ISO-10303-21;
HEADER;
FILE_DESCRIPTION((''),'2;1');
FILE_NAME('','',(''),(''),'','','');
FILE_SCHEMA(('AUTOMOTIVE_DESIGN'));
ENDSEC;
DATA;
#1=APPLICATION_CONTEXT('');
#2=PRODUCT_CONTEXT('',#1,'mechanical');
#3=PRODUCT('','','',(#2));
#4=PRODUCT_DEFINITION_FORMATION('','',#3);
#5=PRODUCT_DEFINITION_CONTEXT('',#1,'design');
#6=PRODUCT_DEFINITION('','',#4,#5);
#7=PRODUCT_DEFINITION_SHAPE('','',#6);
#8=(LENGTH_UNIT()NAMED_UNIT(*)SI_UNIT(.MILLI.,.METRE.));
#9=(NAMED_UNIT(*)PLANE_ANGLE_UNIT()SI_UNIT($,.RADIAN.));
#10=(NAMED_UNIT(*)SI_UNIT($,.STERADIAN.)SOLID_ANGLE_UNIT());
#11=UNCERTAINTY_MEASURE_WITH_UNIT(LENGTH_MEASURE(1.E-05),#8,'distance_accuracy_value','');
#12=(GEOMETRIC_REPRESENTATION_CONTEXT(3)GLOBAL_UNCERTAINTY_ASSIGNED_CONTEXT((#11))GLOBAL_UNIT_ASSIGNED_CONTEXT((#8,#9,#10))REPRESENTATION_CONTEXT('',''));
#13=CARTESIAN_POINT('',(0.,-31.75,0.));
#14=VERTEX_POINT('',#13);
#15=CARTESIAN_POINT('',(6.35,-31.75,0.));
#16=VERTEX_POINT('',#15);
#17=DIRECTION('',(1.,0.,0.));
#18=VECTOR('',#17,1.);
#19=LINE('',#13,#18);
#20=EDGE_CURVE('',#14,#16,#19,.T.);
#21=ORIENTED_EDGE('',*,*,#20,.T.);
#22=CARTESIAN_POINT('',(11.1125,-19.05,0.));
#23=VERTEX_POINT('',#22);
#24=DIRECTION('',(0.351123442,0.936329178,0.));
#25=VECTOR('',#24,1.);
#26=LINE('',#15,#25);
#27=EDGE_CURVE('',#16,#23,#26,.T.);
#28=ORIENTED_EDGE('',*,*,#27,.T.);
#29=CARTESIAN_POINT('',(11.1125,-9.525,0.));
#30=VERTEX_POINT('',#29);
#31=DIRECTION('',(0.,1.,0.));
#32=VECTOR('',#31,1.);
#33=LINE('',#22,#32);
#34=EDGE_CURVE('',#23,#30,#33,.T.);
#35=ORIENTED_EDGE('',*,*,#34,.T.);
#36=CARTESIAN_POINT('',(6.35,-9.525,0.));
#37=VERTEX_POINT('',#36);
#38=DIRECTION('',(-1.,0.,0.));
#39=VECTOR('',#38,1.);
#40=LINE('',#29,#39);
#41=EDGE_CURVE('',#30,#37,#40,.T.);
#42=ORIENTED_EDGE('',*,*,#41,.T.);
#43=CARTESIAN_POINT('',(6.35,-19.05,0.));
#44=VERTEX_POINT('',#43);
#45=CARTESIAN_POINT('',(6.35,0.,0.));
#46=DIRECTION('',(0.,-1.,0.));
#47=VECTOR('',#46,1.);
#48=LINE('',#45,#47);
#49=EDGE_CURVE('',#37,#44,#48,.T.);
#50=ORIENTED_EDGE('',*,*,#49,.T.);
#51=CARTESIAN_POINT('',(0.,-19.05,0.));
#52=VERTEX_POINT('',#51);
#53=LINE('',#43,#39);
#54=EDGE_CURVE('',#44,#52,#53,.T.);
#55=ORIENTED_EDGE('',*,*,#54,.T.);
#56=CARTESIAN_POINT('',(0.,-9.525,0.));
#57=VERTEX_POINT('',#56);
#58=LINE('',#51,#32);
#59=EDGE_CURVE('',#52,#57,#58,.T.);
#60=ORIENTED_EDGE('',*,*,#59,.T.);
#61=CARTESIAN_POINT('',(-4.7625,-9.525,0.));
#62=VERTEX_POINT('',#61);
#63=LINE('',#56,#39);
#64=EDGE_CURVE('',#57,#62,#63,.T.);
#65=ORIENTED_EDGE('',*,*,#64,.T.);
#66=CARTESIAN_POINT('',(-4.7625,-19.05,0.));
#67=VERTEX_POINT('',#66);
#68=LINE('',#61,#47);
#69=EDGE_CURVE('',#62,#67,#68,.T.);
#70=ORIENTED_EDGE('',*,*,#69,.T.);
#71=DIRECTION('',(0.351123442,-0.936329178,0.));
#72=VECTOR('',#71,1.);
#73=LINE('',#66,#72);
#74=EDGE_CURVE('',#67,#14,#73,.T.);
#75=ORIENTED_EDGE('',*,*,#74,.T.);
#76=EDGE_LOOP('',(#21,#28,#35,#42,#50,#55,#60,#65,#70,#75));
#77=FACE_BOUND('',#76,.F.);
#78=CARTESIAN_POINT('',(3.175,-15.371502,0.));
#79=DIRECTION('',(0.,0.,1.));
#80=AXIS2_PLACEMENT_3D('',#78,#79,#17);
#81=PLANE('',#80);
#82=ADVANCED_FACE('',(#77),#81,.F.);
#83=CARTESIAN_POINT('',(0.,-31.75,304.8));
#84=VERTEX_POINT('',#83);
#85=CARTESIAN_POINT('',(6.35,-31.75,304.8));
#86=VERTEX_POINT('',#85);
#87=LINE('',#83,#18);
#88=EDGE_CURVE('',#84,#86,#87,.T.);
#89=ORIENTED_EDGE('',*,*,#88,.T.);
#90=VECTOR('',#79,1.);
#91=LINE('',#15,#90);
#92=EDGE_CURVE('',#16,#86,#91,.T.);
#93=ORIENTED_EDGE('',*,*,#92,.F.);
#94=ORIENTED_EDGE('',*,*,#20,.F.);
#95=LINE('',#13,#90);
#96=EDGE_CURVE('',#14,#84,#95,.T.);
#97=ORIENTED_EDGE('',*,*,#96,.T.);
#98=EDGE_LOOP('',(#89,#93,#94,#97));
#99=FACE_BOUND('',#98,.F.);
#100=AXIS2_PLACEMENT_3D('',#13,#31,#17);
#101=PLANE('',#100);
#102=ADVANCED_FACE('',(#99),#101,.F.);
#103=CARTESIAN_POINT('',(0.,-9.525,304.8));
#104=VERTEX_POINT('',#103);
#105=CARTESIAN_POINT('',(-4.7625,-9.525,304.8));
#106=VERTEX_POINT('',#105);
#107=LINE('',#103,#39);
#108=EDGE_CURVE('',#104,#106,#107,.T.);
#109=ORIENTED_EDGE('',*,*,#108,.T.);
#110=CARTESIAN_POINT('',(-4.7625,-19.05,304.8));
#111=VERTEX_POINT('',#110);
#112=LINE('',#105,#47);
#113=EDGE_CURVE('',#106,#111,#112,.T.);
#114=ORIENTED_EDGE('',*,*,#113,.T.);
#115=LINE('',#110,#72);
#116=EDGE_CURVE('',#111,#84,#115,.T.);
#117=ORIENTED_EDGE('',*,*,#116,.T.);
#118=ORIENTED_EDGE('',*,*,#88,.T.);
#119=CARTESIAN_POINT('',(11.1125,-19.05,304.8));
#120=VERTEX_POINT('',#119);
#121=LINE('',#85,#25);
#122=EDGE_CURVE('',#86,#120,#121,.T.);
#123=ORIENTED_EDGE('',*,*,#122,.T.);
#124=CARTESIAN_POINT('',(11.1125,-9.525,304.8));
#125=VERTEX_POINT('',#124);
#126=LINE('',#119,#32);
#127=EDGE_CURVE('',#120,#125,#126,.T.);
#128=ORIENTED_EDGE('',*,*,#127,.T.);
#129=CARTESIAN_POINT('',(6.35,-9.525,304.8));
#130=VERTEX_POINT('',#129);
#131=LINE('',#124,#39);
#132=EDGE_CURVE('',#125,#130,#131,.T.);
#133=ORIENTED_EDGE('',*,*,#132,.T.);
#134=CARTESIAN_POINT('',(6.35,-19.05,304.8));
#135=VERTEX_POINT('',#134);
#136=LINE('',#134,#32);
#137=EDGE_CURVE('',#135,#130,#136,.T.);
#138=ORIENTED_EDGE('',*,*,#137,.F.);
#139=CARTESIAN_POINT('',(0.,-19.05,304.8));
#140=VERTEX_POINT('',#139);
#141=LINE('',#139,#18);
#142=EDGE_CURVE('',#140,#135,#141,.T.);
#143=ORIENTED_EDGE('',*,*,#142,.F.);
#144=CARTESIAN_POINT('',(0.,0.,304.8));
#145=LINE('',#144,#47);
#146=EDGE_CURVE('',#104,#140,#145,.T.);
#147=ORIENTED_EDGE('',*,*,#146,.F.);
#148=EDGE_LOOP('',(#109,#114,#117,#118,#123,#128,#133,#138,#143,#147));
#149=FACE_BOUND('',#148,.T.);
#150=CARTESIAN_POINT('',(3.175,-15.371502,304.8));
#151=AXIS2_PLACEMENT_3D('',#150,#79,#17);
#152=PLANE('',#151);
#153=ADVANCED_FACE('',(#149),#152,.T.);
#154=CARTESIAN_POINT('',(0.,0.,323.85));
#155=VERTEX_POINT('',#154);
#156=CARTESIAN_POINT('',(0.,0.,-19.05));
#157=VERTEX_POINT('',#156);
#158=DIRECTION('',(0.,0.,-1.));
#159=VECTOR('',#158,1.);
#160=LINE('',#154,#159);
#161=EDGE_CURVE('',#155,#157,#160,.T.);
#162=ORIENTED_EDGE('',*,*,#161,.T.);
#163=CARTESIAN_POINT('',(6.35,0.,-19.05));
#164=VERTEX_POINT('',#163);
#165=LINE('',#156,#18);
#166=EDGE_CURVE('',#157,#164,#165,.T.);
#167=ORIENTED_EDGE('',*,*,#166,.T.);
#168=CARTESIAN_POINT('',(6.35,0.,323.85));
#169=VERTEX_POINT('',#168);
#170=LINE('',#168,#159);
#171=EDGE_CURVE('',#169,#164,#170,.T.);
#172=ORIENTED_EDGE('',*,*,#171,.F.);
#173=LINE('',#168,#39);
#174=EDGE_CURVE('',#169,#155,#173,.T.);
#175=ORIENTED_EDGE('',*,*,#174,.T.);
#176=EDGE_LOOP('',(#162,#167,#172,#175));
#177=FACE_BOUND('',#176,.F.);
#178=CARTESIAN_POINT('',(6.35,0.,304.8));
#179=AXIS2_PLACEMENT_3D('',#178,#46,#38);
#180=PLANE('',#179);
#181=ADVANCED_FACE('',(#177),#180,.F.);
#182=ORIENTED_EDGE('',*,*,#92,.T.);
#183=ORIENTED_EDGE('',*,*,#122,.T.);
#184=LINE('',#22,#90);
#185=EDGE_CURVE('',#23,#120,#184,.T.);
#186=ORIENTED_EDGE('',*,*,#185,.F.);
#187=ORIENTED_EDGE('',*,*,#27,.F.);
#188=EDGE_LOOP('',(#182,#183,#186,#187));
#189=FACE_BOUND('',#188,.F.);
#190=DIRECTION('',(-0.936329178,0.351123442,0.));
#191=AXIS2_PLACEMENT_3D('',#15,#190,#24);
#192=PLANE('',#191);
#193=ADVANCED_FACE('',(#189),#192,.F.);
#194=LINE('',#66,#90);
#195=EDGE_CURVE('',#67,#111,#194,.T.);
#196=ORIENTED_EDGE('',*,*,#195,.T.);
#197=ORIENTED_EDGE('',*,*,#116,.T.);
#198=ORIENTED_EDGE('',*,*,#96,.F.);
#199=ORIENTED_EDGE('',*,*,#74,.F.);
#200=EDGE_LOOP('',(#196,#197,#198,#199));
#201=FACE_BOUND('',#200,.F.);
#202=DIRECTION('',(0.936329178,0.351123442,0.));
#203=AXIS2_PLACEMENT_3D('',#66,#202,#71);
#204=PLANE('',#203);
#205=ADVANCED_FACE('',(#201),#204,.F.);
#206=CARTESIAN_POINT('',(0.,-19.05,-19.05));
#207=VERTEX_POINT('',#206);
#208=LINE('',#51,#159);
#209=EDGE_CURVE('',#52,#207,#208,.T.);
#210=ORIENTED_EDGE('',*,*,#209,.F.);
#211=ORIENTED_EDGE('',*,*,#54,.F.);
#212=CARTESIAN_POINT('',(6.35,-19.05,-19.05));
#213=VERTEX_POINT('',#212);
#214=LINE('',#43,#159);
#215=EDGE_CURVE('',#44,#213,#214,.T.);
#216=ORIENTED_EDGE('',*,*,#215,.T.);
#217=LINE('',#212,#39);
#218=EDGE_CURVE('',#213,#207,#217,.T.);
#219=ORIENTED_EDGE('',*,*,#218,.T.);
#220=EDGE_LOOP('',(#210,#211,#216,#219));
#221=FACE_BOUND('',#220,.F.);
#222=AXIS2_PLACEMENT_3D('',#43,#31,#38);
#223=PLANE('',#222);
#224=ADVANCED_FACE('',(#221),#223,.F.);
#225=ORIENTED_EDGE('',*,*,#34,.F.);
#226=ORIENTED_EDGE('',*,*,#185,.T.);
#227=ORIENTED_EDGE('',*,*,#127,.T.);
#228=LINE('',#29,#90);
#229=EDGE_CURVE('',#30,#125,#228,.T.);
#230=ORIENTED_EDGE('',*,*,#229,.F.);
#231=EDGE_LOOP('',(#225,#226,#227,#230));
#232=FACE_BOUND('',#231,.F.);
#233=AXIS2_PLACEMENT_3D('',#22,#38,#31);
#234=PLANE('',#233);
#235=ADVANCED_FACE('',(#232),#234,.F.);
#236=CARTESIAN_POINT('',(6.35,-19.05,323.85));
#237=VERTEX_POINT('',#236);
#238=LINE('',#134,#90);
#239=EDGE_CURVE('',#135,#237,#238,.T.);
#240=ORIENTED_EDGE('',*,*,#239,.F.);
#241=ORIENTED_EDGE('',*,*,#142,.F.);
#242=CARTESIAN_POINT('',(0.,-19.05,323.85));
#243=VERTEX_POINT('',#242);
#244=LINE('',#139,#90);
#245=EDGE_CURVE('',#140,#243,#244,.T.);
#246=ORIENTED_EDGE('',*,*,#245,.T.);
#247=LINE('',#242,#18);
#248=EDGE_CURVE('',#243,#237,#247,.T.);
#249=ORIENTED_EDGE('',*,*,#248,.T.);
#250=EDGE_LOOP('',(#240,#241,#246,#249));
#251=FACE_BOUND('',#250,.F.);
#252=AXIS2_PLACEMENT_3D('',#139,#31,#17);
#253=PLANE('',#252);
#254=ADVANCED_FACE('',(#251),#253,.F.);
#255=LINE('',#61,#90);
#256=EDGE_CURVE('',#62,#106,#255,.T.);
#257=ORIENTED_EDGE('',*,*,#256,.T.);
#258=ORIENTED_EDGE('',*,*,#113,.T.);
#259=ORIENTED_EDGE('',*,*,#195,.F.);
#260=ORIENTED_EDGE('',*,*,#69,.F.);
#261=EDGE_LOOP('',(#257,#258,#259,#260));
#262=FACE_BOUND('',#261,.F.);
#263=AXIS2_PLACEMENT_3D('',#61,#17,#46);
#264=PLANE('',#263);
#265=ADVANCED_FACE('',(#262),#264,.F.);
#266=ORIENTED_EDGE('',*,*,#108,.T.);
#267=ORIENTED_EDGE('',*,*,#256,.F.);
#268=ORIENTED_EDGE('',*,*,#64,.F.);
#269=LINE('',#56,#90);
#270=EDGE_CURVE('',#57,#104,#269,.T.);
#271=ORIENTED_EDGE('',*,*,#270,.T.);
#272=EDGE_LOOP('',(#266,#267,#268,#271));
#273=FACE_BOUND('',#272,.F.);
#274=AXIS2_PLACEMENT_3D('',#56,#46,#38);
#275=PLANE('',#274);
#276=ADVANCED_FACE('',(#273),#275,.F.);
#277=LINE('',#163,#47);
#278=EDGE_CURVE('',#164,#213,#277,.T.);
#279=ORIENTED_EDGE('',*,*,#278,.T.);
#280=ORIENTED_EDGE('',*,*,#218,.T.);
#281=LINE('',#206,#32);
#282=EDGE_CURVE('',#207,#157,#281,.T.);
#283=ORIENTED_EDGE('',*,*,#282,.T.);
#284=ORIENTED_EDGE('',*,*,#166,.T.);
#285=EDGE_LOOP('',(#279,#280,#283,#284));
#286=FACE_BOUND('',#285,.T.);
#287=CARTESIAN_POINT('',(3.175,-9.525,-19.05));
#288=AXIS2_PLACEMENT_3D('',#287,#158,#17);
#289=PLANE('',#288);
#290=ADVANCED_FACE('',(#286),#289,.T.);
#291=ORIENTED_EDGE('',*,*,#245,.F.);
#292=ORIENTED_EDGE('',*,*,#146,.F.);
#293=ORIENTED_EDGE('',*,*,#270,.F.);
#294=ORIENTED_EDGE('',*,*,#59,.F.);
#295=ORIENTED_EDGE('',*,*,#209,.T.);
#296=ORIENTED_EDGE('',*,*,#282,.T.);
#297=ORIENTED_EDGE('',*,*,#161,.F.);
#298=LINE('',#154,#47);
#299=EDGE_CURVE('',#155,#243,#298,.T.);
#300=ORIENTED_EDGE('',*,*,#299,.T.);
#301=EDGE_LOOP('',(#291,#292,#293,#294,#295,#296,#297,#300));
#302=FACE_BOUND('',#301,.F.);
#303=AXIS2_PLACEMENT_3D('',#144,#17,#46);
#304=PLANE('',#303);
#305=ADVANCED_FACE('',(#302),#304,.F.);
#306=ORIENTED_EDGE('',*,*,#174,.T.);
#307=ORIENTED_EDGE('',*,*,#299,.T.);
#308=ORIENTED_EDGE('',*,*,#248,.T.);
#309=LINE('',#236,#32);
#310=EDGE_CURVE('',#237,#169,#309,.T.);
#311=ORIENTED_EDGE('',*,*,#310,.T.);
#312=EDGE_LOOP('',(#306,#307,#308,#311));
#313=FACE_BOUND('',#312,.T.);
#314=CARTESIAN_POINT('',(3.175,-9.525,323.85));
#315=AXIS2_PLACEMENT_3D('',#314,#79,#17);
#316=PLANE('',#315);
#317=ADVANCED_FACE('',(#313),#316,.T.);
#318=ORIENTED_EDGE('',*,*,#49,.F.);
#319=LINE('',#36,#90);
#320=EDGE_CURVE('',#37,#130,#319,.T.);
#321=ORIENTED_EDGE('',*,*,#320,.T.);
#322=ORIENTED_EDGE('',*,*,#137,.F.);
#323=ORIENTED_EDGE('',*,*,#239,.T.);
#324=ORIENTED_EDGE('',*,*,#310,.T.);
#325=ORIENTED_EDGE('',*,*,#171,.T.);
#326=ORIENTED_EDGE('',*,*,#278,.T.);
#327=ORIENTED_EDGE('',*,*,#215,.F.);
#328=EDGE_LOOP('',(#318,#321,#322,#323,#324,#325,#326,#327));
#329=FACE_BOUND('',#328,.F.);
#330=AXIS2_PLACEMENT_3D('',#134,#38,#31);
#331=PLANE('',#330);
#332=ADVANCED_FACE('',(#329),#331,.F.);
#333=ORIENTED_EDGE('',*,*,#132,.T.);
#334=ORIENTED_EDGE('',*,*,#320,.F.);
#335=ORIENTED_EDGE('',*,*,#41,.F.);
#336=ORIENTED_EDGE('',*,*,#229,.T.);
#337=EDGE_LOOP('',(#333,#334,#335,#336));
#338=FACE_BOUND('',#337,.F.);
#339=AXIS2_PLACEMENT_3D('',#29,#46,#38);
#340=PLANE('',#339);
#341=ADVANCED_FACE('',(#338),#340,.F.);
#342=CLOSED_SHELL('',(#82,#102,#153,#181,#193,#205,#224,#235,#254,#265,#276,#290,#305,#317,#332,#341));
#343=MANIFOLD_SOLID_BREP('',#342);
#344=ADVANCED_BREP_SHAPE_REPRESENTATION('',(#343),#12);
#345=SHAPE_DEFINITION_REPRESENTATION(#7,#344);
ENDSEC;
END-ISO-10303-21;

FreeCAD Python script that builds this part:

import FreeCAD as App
import Part
import Sketcher
Q = App.Units.Quantity

doc = App.newDocument("Part")
params = doc.addObject("Spreadsheet::Sheet", "Params")
for row, (alias, value) in enumerate([
    ("sketch1_width", "0.25 in"),
    ("sketch1_width2", "0.1875 in"),
    ("sketch1_height", "0.375 in"),
    ("pad1_length", "12 in"),
    ("sketch2_width", "0.25 in"),
    ("sketch2_height", "0.75 in"),
    ("pad2_length", "0.75 in"),
    ("sketch3_width", "0.25 in"),
    ("sketch3_height", "0.75 in"),
    ("pad3_length", "0.75 in"),
], start=1):
    params.set(f"A{row}", alias)
    params.set(f"B{row}", "=" + value)
    params.setAlias(f"B{row}", alias)

body = doc.addObject("PartDesign::Body", "Body")

sketch1 = body.newObject("Sketcher::SketchObject", "Sketch")
sketch1.AttachmentSupport = (doc.getObject("XY_Plane"), [""])
sketch1.MapMode = "FlatFace"
sketch1.addGeometry([
    Part.LineSegment(App.Vector(6.3, 0, 0), App.Vector(0, 0, 0)),
    Part.LineSegment(App.Vector(0, 0, 0), App.Vector(0, -9.5, 0)),
    Part.LineSegment(App.Vector(0, -9.5, 0), App.Vector(-4.8, -9.5, 0)),
    Part.LineSegment(App.Vector(-4.8, -9.5, 0), App.Vector(-4.8, -19.1, 0)),
    Part.LineSegment(App.Vector(-4.8, -19.1, 0), App.Vector(0, -31.8, 0)),
    Part.LineSegment(App.Vector(0, -31.8, 0), App.Vector(6.3, -31.8, 0)),
    Part.LineSegment(App.Vector(6.3, -31.8, 0), App.Vector(11.1, -19.1, 0)),
    Part.LineSegment(App.Vector(11.1, -19.1, 0), App.Vector(11.1, -9.5, 0)),
    Part.LineSegment(App.Vector(11.1, -9.5, 0), App.Vector(6.3, -9.5, 0)),
    Part.LineSegment(App.Vector(6.3, -9.5, 0), App.Vector(6.3, 0, 0)),
], False)
sketch1.addConstraint([
    Sketcher.Constraint("Coincident", 0, 2, 1, 1),
    Sketcher.Constraint("Coincident", 1, 2, 2, 1),
    Sketcher.Constraint("Coincident", 2, 2, 3, 1),
    Sketcher.Constraint("Coincident", 3, 2, 4, 1),
    Sketcher.Constraint("Coincident", 4, 2, 5, 1),
    Sketcher.Constraint("Coincident", 5, 2, 6, 1),
    Sketcher.Constraint("Coincident", 6, 2, 7, 1),
    Sketcher.Constraint("Coincident", 7, 2, 8, 1),
    Sketcher.Constraint("Coincident", 8, 2, 9, 1),
    Sketcher.Constraint("Coincident", 9, 2, 0, 1),
    Sketcher.Constraint("Horizontal", 0),
    Sketcher.Constraint("Vertical", 1),
    Sketcher.Constraint("Horizontal", 2),
    Sketcher.Constraint("Vertical", 3),
    Sketcher.Constraint("Horizontal", 5),
    Sketcher.Constraint("Vertical", 7),
    Sketcher.Constraint("Horizontal", 8),
    Sketcher.Constraint("Vertical", 9),
    Sketcher.Constraint("Coincident", 0, 2, -1, 1),
    Sketcher.Constraint("PointOnObject", 4, 2, -2),
    Sketcher.Constraint("Horizontal", 3, 2, 6, 2),
    Sketcher.Constraint("Horizontal", 2, 2, 7, 2),
    Sketcher.Constraint("Vertical", 5, 2, 8, 2),
    Sketcher.Constraint("Equal", 2, 8),
    Sketcher.Constraint("Equal", 1, 3),
    Sketcher.Constraint("DistanceX", 0, 2, 0, 1, Q("0.25 in")),
    Sketcher.Constraint("DistanceY", 4, 2, 3, 2, Q("0.5 in")),
    Sketcher.Constraint("DistanceX", 2, 2, 2, 1, Q("0.1875 in")),
    Sketcher.Constraint("DistanceY", 1, 2, 1, 1, Q("0.375 in")),
])
sketch1.setExpression("Constraints[25]", "Params.sketch1_width")
sketch1.setExpression("Constraints[27]", "Params.sketch1_width2")
sketch1.setExpression("Constraints[28]", "Params.sketch1_height")
pad1 = body.newObject("PartDesign::Pad", "Pad")
pad1.Profile = sketch1
pad1.setExpression("Length", "Params.pad1_length")

sketch2 = body.newObject("Sketcher::SketchObject", "Sketch001")
sketch2.AttachmentSupport = (doc.getObject("XY_Plane"), [""])
sketch2.MapMode = "FlatFace"
sketch2.addGeometry([
    Part.LineSegment(App.Vector(6, -19, 0), App.Vector(0, -19, 0)),
    Part.LineSegment(App.Vector(0, -19, 0), App.Vector(0, 0, 0)),
    Part.LineSegment(App.Vector(0, 0, 0), App.Vector(6, 0, 0)),
    Part.LineSegment(App.Vector(6, 0, 0), App.Vector(6, -19, 0)),
], False)
sketch2.addConstraint([
    Sketcher.Constraint("Coincident", 0, 2, 1, 1),
    Sketcher.Constraint("Coincident", 1, 2, 2, 1),
    Sketcher.Constraint("Coincident", 2, 2, 3, 1),
    Sketcher.Constraint("Coincident", 3, 2, 0, 1),
    Sketcher.Constraint("Horizontal", 0),
    Sketcher.Constraint("Vertical", 1),
    Sketcher.Constraint("Horizontal", 2),
    Sketcher.Constraint("Vertical", 3),
    Sketcher.Constraint("Coincident", 1, 2, -1, 1),
    Sketcher.Constraint("DistanceX", 0, 2, 0, 1, Q("0.25 in")),
    Sketcher.Constraint("DistanceY", 1, 1, 1, 2, Q("0.75 in")),
])
sketch2.setExpression("Constraints[9]", "Params.sketch2_width")
sketch2.setExpression("Constraints[10]", "Params.sketch2_height")
pad2 = body.newObject("PartDesign::Pad", "Pad001")
pad2.Profile = sketch2
pad2.setExpression("Length", "Params.pad2_length")
pad2.Reversed = True

sketch3 = body.newObject("Sketcher::SketchObject", "Sketch002")
sketch3.AttachmentSupport = (doc.getObject("XY_Plane"), [""])
sketch3.MapMode = "FlatFace"
sketch3.AttachmentOffset = App.Placement(App.Vector(0, 0, 12 * 25.4), App.Rotation())
sketch3.addGeometry([
    Part.LineSegment(App.Vector(0, 0, 0), App.Vector(0, -19, 0)),
    Part.LineSegment(App.Vector(0, -19, 0), App.Vector(6, -19, 0)),
    Part.LineSegment(App.Vector(6, -19, 0), App.Vector(6, 0, 0)),
    Part.LineSegment(App.Vector(6, 0, 0), App.Vector(0, 0, 0)),
], False)
sketch3.addConstraint([
    Sketcher.Constraint("Coincident", 0, 2, 1, 1),
    Sketcher.Constraint("Coincident", 1, 2, 2, 1),
    Sketcher.Constraint("Coincident", 2, 2, 3, 1),
    Sketcher.Constraint("Coincident", 3, 2, 0, 1),
    Sketcher.Constraint("Vertical", 0),
    Sketcher.Constraint("Horizontal", 1),
    Sketcher.Constraint("Vertical", 2),
    Sketcher.Constraint("Horizontal", 3),
    Sketcher.Constraint("Coincident", 3, 2, -1, 1),
    Sketcher.Constraint("DistanceX", 1, 1, 1, 2, Q("0.25 in")),
    Sketcher.Constraint("DistanceY", 0, 2, 0, 1, Q("0.75 in")),
])
sketch3.setExpression("Constraints[9]", "Params.sketch3_width")
sketch3.setExpression("Constraints[10]", "Params.sketch3_height")
pad3 = body.newObject("PartDesign::Pad", "Pad002")
pad3.Profile = sketch3
pad3.setExpression("Length", "Params.pad3_length")

doc.recompute()
